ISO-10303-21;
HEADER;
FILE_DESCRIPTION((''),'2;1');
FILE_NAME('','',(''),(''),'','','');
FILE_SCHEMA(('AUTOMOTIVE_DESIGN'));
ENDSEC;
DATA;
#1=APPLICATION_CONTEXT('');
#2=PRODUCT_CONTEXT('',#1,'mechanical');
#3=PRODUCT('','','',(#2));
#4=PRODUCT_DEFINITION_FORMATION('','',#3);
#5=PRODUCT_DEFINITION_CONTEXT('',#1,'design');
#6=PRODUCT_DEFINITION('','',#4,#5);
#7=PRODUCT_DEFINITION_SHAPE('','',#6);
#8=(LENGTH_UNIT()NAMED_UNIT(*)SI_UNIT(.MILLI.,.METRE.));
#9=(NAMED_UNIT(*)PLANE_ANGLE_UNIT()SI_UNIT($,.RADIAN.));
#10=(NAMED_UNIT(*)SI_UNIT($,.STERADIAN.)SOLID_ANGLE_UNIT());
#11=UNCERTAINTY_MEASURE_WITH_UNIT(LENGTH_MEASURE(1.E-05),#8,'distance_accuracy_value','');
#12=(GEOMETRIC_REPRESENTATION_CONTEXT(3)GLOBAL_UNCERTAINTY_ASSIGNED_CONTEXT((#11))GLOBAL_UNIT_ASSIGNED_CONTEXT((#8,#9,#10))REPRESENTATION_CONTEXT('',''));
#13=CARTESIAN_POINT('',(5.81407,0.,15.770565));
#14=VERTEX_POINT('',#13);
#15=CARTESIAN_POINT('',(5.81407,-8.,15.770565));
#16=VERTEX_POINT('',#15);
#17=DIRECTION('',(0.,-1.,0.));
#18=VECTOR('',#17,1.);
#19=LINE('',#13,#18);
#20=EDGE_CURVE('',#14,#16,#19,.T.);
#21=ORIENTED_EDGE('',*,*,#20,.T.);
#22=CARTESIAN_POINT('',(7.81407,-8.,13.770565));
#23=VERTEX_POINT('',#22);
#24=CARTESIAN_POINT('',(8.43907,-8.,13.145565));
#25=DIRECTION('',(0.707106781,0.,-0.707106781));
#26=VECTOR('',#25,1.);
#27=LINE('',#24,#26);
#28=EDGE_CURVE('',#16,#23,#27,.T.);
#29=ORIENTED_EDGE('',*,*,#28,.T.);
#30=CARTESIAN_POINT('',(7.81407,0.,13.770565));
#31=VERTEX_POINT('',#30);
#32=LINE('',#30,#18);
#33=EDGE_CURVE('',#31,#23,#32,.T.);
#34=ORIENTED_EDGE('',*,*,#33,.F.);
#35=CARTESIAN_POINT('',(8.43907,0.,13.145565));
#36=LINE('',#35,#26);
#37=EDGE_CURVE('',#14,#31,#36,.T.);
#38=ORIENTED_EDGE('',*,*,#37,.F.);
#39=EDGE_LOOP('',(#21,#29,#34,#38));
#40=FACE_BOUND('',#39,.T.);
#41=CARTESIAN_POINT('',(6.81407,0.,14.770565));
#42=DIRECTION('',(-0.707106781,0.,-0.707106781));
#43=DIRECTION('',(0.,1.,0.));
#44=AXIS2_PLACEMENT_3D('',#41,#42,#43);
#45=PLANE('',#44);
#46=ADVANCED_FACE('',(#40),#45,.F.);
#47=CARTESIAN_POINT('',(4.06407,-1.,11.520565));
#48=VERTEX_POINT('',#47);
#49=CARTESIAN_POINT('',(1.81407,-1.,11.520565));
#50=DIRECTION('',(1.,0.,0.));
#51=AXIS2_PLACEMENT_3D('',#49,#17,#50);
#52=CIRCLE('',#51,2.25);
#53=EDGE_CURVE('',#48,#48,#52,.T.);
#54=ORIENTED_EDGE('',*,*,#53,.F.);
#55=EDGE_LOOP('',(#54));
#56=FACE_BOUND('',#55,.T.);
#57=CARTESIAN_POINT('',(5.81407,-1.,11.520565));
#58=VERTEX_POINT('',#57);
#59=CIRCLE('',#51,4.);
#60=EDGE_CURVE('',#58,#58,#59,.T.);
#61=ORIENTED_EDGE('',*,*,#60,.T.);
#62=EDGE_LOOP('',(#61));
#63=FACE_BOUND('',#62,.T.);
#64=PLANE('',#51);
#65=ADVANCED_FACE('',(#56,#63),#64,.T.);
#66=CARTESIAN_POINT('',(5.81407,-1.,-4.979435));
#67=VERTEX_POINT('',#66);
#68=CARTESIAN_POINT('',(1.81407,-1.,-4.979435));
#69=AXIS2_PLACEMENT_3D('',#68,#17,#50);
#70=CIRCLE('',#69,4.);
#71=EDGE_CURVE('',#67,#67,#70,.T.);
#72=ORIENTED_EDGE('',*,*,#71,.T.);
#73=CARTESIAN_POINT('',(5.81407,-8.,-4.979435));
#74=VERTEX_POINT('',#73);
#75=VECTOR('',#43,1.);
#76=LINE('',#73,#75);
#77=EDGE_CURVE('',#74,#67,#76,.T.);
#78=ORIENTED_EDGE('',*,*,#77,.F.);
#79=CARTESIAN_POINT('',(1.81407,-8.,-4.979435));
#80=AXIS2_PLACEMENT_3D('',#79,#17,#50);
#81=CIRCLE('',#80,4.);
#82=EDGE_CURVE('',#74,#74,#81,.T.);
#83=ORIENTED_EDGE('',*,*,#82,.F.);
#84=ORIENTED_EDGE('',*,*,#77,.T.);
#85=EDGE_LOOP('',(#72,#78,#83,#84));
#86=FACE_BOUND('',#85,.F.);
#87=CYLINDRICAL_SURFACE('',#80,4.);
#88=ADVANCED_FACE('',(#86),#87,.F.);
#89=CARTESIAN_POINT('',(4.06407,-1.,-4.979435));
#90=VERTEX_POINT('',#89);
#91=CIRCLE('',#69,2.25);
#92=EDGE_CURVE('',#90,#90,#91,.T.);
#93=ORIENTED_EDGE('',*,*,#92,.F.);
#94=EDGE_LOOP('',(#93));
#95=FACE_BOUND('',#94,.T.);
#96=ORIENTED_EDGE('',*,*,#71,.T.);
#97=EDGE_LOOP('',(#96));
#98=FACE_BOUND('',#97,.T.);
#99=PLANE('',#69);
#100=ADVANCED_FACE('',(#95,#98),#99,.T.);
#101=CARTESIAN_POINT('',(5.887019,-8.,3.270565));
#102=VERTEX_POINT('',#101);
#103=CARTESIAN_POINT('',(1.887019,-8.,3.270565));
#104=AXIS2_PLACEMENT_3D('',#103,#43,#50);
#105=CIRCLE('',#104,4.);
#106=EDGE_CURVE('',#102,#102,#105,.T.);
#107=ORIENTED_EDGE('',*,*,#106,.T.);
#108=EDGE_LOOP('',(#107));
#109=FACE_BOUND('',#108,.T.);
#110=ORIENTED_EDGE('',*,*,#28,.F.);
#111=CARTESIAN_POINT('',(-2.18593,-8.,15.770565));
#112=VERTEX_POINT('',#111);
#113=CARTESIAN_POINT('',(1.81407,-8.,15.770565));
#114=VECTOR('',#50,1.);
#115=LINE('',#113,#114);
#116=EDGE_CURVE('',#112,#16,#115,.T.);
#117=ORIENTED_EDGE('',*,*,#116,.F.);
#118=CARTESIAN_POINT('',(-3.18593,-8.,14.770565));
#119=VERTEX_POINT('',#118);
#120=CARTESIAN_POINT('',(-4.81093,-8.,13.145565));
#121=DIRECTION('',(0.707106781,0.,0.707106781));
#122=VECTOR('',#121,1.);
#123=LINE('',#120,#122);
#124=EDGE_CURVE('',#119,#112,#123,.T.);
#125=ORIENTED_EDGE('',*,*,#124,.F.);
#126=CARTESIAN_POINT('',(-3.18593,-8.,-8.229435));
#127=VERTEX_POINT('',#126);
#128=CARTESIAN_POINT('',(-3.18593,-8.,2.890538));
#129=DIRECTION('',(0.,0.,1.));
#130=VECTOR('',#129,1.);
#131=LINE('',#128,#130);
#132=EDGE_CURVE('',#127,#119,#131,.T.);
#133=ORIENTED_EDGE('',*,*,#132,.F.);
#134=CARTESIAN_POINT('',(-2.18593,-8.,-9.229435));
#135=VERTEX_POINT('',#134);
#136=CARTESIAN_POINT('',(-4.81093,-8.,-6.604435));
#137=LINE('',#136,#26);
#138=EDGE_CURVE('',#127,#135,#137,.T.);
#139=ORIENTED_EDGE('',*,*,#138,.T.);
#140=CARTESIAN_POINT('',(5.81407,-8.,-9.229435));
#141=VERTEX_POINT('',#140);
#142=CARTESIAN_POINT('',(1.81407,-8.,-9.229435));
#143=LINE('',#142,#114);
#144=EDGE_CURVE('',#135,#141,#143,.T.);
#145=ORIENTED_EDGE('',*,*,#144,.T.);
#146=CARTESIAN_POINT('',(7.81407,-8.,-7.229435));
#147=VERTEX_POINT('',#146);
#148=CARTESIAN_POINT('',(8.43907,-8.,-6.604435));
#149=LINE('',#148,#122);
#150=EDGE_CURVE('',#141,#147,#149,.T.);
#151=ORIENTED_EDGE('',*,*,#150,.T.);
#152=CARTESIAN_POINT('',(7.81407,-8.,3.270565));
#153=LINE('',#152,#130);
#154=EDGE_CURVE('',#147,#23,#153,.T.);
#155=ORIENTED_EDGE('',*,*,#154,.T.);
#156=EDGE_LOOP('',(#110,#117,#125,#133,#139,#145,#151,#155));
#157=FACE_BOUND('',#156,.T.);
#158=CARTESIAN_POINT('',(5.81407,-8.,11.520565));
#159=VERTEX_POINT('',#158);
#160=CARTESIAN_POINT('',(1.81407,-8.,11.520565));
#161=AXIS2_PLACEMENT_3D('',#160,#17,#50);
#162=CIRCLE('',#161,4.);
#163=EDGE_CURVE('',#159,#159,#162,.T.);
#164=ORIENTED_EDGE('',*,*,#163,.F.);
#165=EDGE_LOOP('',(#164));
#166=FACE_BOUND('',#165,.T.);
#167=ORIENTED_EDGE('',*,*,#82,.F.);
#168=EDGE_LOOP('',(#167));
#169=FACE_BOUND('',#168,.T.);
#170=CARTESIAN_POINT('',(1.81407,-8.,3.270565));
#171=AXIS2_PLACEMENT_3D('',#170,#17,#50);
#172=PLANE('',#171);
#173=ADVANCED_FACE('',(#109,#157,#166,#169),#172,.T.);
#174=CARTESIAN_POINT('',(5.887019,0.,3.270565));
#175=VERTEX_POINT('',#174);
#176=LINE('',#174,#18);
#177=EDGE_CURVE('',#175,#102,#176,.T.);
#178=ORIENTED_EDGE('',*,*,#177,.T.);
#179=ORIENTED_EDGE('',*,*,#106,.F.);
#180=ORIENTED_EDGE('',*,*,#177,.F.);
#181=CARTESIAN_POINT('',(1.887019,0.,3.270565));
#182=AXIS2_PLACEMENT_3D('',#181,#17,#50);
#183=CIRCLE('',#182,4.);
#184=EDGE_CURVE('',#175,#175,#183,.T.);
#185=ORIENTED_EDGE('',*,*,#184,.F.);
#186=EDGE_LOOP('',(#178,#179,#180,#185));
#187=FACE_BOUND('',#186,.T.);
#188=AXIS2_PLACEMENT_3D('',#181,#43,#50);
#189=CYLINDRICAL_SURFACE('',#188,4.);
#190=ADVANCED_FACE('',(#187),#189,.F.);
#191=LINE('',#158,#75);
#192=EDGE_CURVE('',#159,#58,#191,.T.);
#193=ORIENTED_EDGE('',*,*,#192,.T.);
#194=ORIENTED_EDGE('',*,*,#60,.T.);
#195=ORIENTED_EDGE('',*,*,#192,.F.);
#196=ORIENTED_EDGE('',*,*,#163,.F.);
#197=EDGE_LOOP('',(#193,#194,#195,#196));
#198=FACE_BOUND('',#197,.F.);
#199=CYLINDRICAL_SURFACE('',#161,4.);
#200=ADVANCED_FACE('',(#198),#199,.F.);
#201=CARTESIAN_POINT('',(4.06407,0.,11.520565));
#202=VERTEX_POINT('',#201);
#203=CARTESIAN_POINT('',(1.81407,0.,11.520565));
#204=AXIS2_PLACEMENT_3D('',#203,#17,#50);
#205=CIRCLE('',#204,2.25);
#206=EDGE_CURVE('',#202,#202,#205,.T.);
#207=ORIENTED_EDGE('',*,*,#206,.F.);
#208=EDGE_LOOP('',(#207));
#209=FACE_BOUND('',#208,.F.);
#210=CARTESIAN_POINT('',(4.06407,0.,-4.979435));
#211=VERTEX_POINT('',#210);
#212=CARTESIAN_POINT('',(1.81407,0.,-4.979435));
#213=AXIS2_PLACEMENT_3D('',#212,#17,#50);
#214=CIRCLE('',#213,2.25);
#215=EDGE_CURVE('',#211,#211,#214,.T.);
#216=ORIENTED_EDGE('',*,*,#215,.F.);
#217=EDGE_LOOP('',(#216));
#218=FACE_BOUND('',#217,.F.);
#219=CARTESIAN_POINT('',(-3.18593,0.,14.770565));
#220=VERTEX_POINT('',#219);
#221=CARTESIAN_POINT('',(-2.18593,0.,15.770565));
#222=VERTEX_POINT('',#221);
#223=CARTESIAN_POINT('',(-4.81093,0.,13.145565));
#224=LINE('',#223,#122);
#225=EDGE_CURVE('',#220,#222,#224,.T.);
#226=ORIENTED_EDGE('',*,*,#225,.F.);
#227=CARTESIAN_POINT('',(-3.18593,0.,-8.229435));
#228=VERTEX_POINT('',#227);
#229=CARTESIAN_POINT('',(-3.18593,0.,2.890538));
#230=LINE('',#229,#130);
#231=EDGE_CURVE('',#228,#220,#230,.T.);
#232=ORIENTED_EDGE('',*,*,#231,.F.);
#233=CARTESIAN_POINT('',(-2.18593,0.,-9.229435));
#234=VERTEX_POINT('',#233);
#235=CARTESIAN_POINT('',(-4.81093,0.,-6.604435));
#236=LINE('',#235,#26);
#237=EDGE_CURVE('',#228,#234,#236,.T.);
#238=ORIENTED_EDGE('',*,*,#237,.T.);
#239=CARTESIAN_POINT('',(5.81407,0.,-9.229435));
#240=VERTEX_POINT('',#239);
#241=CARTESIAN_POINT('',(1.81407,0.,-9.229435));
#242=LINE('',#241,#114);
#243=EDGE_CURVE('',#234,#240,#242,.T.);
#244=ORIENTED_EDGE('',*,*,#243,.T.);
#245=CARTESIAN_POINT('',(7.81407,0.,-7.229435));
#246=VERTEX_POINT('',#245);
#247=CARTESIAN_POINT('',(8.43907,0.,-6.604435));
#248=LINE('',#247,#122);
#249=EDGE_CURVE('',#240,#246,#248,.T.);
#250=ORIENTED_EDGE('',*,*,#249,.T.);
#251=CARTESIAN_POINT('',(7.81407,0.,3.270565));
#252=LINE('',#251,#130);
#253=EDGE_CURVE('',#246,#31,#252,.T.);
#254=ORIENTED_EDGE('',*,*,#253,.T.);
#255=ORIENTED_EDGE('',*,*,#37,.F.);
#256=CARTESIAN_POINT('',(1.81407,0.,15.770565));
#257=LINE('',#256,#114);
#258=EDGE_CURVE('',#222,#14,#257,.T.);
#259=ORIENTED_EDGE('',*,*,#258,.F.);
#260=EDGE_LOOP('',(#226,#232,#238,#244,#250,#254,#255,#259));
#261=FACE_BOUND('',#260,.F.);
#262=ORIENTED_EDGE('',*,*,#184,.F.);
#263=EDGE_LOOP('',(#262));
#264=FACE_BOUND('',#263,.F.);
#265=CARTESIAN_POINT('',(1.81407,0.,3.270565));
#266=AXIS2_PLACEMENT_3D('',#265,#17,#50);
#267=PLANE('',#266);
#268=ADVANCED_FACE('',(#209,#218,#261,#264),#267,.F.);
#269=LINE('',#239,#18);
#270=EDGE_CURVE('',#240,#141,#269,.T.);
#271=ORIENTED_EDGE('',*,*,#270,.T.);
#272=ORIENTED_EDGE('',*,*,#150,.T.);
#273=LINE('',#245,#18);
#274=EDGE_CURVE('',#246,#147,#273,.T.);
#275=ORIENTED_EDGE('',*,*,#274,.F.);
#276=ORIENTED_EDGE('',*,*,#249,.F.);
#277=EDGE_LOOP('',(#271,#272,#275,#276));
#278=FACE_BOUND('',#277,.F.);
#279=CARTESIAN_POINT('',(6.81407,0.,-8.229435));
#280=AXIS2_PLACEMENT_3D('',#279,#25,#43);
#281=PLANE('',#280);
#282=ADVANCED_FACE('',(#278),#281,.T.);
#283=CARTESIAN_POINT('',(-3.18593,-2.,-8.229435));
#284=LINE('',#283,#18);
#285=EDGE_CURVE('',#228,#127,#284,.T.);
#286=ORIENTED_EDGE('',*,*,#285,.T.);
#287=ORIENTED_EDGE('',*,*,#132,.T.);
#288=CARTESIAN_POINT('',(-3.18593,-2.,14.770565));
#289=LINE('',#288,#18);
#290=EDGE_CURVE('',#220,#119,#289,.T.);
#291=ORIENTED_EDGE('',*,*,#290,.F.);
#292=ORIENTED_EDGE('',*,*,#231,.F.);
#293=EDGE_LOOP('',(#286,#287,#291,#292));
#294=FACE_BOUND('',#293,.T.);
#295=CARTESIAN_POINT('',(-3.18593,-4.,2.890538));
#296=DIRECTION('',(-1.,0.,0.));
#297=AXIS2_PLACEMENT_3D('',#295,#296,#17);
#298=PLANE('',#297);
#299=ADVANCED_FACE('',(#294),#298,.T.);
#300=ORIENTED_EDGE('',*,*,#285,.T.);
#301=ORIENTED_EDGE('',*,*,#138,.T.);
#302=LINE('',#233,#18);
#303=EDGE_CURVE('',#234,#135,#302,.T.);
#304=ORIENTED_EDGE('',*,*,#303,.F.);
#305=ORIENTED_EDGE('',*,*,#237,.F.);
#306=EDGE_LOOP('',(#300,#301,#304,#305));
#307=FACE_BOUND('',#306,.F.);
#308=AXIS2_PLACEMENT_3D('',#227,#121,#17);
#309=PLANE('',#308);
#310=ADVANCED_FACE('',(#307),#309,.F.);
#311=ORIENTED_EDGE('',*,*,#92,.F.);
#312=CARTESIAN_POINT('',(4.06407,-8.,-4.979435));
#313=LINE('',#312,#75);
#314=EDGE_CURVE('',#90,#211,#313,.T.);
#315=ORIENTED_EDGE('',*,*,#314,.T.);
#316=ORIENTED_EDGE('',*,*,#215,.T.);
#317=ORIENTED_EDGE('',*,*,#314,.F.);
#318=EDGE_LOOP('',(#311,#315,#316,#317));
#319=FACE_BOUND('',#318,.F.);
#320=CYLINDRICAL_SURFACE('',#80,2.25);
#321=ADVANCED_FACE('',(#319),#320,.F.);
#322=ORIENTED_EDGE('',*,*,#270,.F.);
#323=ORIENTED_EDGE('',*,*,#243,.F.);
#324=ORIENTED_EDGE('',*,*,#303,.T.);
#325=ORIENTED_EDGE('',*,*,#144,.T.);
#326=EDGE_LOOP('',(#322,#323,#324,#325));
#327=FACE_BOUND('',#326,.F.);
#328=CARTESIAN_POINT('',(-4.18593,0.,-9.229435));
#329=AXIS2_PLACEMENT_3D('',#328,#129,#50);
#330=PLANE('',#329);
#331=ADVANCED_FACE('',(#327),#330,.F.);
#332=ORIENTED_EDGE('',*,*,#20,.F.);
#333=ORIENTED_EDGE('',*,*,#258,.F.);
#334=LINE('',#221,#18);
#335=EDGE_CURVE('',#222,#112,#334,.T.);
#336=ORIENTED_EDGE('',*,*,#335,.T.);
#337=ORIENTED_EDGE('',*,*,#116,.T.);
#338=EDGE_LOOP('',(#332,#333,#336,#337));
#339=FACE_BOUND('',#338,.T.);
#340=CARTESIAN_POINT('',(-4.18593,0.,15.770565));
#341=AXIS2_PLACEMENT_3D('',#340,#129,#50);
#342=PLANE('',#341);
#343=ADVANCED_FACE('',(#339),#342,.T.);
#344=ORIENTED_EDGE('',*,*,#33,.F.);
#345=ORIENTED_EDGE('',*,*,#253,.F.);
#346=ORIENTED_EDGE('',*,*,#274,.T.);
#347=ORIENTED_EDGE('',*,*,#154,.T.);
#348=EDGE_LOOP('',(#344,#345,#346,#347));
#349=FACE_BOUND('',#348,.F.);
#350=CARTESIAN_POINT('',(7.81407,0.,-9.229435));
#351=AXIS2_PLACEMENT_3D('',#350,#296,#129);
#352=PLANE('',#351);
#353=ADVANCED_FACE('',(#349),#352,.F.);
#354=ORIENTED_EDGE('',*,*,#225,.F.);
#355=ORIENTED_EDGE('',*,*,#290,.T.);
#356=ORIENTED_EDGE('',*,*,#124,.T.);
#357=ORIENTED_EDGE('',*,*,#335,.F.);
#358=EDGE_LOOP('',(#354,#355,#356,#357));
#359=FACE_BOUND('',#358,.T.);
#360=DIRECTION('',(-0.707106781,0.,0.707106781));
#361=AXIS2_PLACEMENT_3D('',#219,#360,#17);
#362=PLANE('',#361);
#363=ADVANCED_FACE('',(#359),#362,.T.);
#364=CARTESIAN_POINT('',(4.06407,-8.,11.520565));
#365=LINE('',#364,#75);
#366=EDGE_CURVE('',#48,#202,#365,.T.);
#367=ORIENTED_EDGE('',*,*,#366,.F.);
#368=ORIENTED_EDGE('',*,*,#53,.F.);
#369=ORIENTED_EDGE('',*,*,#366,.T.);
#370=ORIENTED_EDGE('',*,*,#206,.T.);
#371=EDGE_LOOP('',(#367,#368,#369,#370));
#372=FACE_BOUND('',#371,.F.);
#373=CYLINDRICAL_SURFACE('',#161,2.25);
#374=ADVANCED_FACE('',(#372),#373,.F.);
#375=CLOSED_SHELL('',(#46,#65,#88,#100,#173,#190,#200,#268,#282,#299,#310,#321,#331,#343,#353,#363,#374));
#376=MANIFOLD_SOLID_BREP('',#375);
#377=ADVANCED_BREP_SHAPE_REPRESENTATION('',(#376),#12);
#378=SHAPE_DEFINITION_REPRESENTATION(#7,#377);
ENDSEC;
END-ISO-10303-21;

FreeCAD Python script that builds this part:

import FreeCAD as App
import Part
import Sketcher
from FreeCAD import Vector


def edges_at(feature, points):
    """Names of the edges that pass closest to the given points."""
    edges = feature.Shape.Edges
    near = lambda p: min(range(len(edges)), key=lambda i: edges[i].distToShape(Part.Vertex(*p))[0])
    return sorted({f"Edge{near(p) + 1}" for p in points})

doc = App.newDocument("Part")
params = doc.addObject("Spreadsheet::Sheet", "Params")
for row, (alias, value) in enumerate([
    ("sketch1_width", "12 mm"),
    ("sketch1_height", "25 mm"),
    ("pad1_length", "8 mm"),
    ("chamfer_size", "2 mm"),
    ("chamfer2_size", "2 mm"),
    ("sketch2_diameter", "4.5 mm"),
    ("pocket1_length", "25 mm"),
    ("sketch3_diameter", "8 mm"),
    ("pocket2_length", "7 mm"),
    ("sketch4_diameter", "8 mm"),
    ("pocket3_length", "25 mm"),
    ("sketch5_width", "8 mm"),
    ("pocket4_length", "1 mm"),
], start=1):
    params.set(f"A{row}", alias)
    params.set(f"B{row}", "=" + value)
    params.setAlias(f"B{row}", alias)

body = doc.addObject("PartDesign::Body", "Body")

sketch1 = doc.addObject("Sketcher::SketchObject", "Sketch")
body.addObject(sketch1)
sketch1.AttachmentSupport = (doc.XZ_Plane, [""])
sketch1.MapMode = "FlatFace"
sketch1.addGeometry([
    Part.LineSegment(Vector(-4, 16, 0), Vector(-4, -9, 0)),
    Part.LineSegment(Vector(-4, -9, 0), Vector(8, -9, 0)),
    Part.LineSegment(Vector(8, -9, 0), Vector(8, 16, 0)),
    Part.LineSegment(Vector(8, 16, 0), Vector(-4, 16, 0)),
], False)
sketch1.addConstraint([
    Sketcher.Constraint("Coincident", 0, 2, 1, 1),
    Sketcher.Constraint("Coincident", 1, 2, 2, 1),
    Sketcher.Constraint("Coincident", 2, 2, 3, 1),
    Sketcher.Constraint("Coincident", 3, 2, 0, 1),
    Sketcher.Constraint("Vertical", 0),
    Sketcher.Constraint("Horizontal", 1),
    Sketcher.Constraint("Vertical", 2),
    Sketcher.Constraint("Horizontal", 3),
    Sketcher.Constraint("DistanceX", 1, 1, 1, 2, 12.0),
    Sketcher.Constraint("DistanceY", 0, 2, 0, 1, 25.0),
    Sketcher.Constraint("DistanceX", 0, 2, -1, 1, 4.18593),
    Sketcher.Constraint("DistanceY", 0, 2, -1, 1, 9.229435),
])
sketch1.setExpression("Constraints[8]", "Params.sketch1_width")
sketch1.setExpression("Constraints[9]", "Params.sketch1_height")
pad1 = doc.addObject("PartDesign::Pad", "Pad")
body.addObject(pad1)
pad1.Profile = sketch1
pad1.setExpression("Length", "Params.pad1_length")
doc.recompute()

chamfer = doc.addObject("PartDesign::Chamfer", "Chamfer")
body.addObject(chamfer)
chamfer.Base = (pad1, edges_at(pad1, [(-4.186, -4, 15.771)]))
chamfer.setExpression("Size", "Params.chamfer_size")
doc.recompute()

chamfer2 = doc.addObject("PartDesign::Chamfer", "Chamfer001")
body.addObject(chamfer2)
chamfer2.Base = (chamfer, edges_at(chamfer, [(7.814, -4, 15.771), (7.814, -4, -9.229), (-4.186, -4, -9.229)]))
chamfer2.setExpression("Size", "Params.chamfer2_size")

sketch2 = doc.addObject("Sketcher::SketchObject", "Sketch001")
body.addObject(sketch2)
sketch2.AttachmentSupport = (doc.XZ_Plane, [""])
sketch2.MapMode = "FlatFace"
sketch2.AttachmentOffset = App.Placement(Vector(0, 0, 8), App.Rotation())
sketch2.addGeometry([
    Part.Circle(Vector(1.8, -5, 0), Vector(0, 0, 1), 2.2),
    Part.Circle(Vector(1.8, 11.5, 0), Vector(0, 0, 1), 2.2),
], False)
sketch2.addConstraint([
    Sketcher.Constraint("Equal", 0, 1),
    Sketcher.Constraint("Vertical", 0, 3, 1, 3),
    Sketcher.Constraint("Diameter", 0, 4.5),
    Sketcher.Constraint("DistanceY", 0, 3, 1, 3, 16.5),
    Sketcher.Constraint("DistanceX", -1, 1, 0, 3, 1.81407),
    Sketcher.Constraint("DistanceY", 0, 3, -1, 1, 4.979435),
])
sketch2.setExpression("Constraints[2]", "Params.sketch2_diameter")
pocket1 = doc.addObject("PartDesign::Pocket", "Pocket")
body.addObject(pocket1)
pocket1.Profile = sketch2
pocket1.setExpression("Length", "Params.pocket1_length")

sketch3 = doc.addObject("Sketcher::SketchObject", "Sketch002")
body.addObject(sketch3)
sketch3.AttachmentSupport = (doc.XZ_Plane, [""])
sketch3.MapMode = "FlatFace"
sketch3.AttachmentOffset = App.Placement(Vector(0, 0, 8), App.Rotation())
sketch3.addGeometry([
    Part.Circle(Vector(1.8, 11.5, 0), Vector(0, 0, 1), 4),
    Part.Circle(Vector(1.8, -5, 0), Vector(0, 0, 1), 4),
], False)
sketch3.addConstraint([
    Sketcher.Constraint("Equal", 0, 1),
    Sketcher.Constraint("Vertical", 0, 3, 1, 3),
    Sketcher.Constraint("Diameter", 0, 8.0),
    Sketcher.Constraint("DistanceY", 1, 3, 0, 3, 16.5),
    Sketcher.Constraint("DistanceX", -1, 1, 0, 3, 1.81407),
    Sketcher.Constraint("DistanceY", -1, 1, 0, 3, 11.520565),
])
sketch3.setExpression("Constraints[2]", "Params.sketch3_diameter")
pocket2 = doc.addObject("PartDesign::Pocket", "Pocket001")
body.addObject(pocket2)
pocket2.Profile = sketch3
pocket2.setExpression("Length", "Params.pocket2_length")

sketch4 = doc.addObject("Sketcher::SketchObject", "Sketch003")
body.addObject(sketch4)
sketch4.AttachmentSupport = (doc.XZ_Plane, [""])
sketch4.MapMode = "FlatFace"
sketch4.addGeometry(Part.Circle(Vector(1.9, 3.3, 0), Vector(0, 0, 1), 4), False)
sketch4.addConstraint([
    Sketcher.Constraint("Diameter", 0, 8.0),
    Sketcher.Constraint("DistanceX", -1, 1, 0, 3, 1.887019),
    Sketcher.Constraint("DistanceY", -1, 1, 0, 3, 3.270565),
])
sketch4.setExpression("Constraints[0]", "Params.sketch4_diameter")
pocket3 = doc.addObject("PartDesign::Pocket", "Pocket002")
body.addObject(pocket3)
pocket3.Profile = sketch4
pocket3.setExpression("Length", "Params.pocket3_length")
pocket3.Reversed = True

sketch5 = doc.addObject("Sketcher::SketchObject", "Sketch004")
body.addObject(sketch5)
sketch5.AttachmentSupport = (doc.YZ_Plane, [""])
sketch5.MapMode = "FlatFace"
sketch5.AttachmentOffset = App.Placement(Vector(0, 0, -4.18593), App.Rotation())
sketch5.addGeometry([
    Part.LineSegment(Vector(0, 17, 0), Vector(0, -11, 0)),
    Part.LineSegment(Vector(0, -11, 0), Vector(-8, -11, 0)),
    Part.LineSegment(Vector(-8, -11, 0), Vector(-8, 17, 0)),
    Part.LineSegment(Vector(-8, 17, 0), Vector(0, 17, 0)),
], False)
sketch5.addConstraint([
    Sketcher.Constraint("Coincident", 0, 2, 1, 1),
    Sketcher.Constraint("Coincident", 1, 2, 2, 1),
    Sketcher.Constraint("Coincident", 2, 2, 3, 1),
    Sketcher.Constraint("Coincident", 3, 2, 0, 1),
    Sketcher.Constraint("Vertical", 0),
    Sketcher.Constraint("Horizontal", 1),
    Sketcher.Constraint("Vertical", 2),
    Sketcher.Constraint("Horizontal", 3),
    Sketcher.Constraint("PointOnObject", 0, 2, -2),
    Sketcher.Constraint("DistanceX", 1, 2, 1, 1, 8.0),
    Sketcher.Constraint("DistanceY", 0, 2, 0, 1, 27.262656),
    Sketcher.Constraint("DistanceY", 0, 2, -1, 1, 10.74079),
])
sketch5.setExpression("Constraints[9]", "Params.sketch5_width")
pocket4 = doc.addObject("PartDesign::Pocket", "Pocket003")
body.addObject(pocket4)
pocket4.Profile = sketch5
pocket4.setExpression("Length", "Params.pocket4_length")
pocket4.Reversed = True

doc.recompute()
